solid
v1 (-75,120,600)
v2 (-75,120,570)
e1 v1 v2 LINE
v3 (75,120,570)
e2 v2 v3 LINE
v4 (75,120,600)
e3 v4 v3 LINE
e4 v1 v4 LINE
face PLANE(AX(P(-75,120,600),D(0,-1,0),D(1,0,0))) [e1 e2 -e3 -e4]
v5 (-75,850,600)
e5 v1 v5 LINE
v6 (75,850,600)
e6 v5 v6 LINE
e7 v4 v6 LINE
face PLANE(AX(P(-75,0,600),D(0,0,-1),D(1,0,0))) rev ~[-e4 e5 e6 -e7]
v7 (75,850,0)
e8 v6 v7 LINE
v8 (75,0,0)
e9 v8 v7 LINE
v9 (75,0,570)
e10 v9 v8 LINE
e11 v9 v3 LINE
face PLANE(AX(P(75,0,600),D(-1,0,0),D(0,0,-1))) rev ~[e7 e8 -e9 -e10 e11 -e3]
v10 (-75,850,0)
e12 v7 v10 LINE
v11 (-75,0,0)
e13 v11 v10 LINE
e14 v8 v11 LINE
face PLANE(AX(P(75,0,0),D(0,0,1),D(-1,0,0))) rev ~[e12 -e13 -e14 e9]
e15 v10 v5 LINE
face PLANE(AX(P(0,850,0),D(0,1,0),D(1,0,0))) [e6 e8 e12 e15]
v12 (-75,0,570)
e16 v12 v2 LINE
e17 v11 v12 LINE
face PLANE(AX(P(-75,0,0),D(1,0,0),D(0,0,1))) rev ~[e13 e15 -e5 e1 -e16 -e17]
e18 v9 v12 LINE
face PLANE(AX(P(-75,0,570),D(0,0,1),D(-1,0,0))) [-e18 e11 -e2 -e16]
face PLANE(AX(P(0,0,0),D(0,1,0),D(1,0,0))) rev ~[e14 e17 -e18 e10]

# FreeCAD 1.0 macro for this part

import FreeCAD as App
import Part
import Sketcher
from FreeCAD import Vector


def add_polygon(sketch, points):
    """Adds a closed chain of lines whose ends are joined by coincident constraints."""
    first, n = sketch.GeometryCount, len(points)
    for a, b in zip(points, points[1:] + points[:1]):
        sketch.addGeometry(Part.LineSegment(App.Vector(*a, 0), App.Vector(*b, 0)), False)
    for i in range(n):
        sketch.addConstraint(Sketcher.Constraint("Coincident", first + i, 2, first + (i + 1) % n, 1))

doc = App.newDocument("Part")
body = doc.addObject("PartDesign::Body", "Body")

sketch1 = doc.addObject("Sketcher::SketchObject", "Sketch")
body.addObject(sketch1)
sketch1.AttachmentSupport = (doc.XZ_Plane, [""])
sketch1.MapMode = "FlatFace"
add_polygon(sketch1, [(75, 600), (75, 0), (-75, 0), (-75, 600)])
sketch1.addConstraint([
    Sketcher.Constraint("Vertical", 0),
    Sketcher.Constraint("Horizontal", 1),
    Sketcher.Constraint("Vertical", 2),
    Sketcher.Constraint("Horizontal", 3),
    Sketcher.Constraint("Symmetric", 0, 2, 1, 2, -1, 1),
    Sketcher.Constraint("DistanceX", 1, 2, 1, 1, 150.0),
    Sketcher.Constraint("DistanceY", 0, 2, 0, 1, 600.0),
])
pad1 = doc.addObject("PartDesign::Pad", "Pad")
body.addObject(pad1)
pad1.Profile = sketch1
pad1.Length = 850
pad1.Reversed = True

sketch2 = doc.addObject("Sketcher::SketchObject", "Sketch001")
body.addObject(sketch2)
sketch2.AttachmentSupport = (doc.XY_Plane, [""])
sketch2.MapMode = "FlatFace"
sketch2.AttachmentOffset = App.Placement(Vector(0, 0, 600), App.Rotation())
add_polygon(sketch2, [(-75, 0), (75, 0), (75, 120), (-75, 120)])
sketch2.addConstraint([
    Sketcher.Constraint("Horizontal", 0),
    Sketcher.Constraint("Vertical", 1),
    Sketcher.Constraint("Horizontal", 2),
    Sketcher.Constraint("Vertical", 3),
    Sketcher.Constraint("Symmetric", 0, 2, 3, 2, -1, 1),
    Sketcher.Constraint("DistanceY", 1, 1, 1, 2, 120.0),
    Sketcher.Constraint("DistanceX", 0, 1, 0, 2, 150.0),
])
pocket1 = doc.addObject("PartDesign::Pocket", "Pocket")
body.addObject(pocket1)
pocket1.Profile = sketch2
pocket1.Length = 30

doc.recompute()
